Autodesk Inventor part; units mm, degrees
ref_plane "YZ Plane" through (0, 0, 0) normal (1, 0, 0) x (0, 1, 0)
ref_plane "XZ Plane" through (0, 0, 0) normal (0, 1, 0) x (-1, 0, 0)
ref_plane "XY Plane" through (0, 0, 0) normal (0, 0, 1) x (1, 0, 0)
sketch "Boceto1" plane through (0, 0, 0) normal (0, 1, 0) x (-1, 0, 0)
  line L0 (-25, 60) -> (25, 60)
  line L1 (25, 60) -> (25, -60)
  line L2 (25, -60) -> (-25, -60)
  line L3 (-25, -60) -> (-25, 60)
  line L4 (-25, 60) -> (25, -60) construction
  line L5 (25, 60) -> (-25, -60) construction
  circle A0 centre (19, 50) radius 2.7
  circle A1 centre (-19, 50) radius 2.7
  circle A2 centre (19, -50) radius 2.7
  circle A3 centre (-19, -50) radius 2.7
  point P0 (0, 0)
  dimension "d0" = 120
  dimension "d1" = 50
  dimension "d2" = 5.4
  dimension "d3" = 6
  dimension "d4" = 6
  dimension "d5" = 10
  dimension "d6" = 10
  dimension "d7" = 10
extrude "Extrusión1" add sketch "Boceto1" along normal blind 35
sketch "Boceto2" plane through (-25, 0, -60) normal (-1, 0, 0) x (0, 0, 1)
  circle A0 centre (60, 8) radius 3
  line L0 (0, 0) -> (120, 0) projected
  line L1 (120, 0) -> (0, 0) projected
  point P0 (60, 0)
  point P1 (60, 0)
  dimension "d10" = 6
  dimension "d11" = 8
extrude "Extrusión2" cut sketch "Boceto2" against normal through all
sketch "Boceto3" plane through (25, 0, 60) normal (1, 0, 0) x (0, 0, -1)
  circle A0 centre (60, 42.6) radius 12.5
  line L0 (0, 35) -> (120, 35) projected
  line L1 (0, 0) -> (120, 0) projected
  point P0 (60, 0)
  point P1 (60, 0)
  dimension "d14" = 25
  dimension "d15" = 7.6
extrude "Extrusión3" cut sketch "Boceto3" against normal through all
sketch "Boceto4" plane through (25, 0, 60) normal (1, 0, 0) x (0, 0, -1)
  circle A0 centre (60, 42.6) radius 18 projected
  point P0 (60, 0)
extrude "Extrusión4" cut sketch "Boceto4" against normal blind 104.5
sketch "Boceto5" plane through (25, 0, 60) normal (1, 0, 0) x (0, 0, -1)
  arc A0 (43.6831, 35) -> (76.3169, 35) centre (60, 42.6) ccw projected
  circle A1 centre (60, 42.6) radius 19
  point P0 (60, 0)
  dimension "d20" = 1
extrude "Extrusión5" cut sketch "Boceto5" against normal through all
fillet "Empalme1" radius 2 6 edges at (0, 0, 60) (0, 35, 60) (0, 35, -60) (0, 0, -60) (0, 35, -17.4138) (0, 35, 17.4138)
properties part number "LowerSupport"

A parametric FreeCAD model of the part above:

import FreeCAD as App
import Part
import Sketcher
Q = App.Units.Quantity


def edges_at(feature, points):
    """Names of the edges that pass closest to the given points."""
    edges = feature.Shape.Edges
    near = lambda p: min(range(len(edges)), key=lambda i: edges[i].distToShape(Part.Vertex(*p))[0])
    return sorted({f"Edge{near(p) + 1}" for p in points})


def add_polygon(sketch, points):
    """Adds a closed chain of lines whose ends are joined by coincident constraints."""
    first, n = sketch.GeometryCount, len(points)
    for a, b in zip(points, points[1:] + points[:1]):
        sketch.addGeometry(Part.LineSegment(App.Vector(*a, 0), App.Vector(*b, 0)), False)
    for i in range(n):
        sketch.addConstraint(Sketcher.Constraint("Coincident", first + i, 2, first + (i + 1) % n, 1))

doc = App.newDocument("Part")
body = doc.addObject("PartDesign::Body", "Body")

# Sketch on XZ plane
sketch1 = body.newObject("Sketcher::SketchObject", "Sketch")
sketch1.AttachmentSupport = (doc.getObject("XZ_Plane"), [""])
sketch1.MapMode = "FlatFace"
add_polygon(sketch1, [(-25, 60), (25, 60), (25, -60), (-25, -60)])  # lines 0-3
sketch1.addGeometry(Part.Circle(App.Vector(19, -50, 0), App.Vector(0, 0, 1), 2.7), False)  # 4
sketch1.addGeometry(Part.Circle(App.Vector(-19, -50, 0), App.Vector(0, 0, 1), 2.7), False)  # 5
sketch1.addGeometry(Part.Circle(App.Vector(19, 50, 0), App.Vector(0, 0, 1), 2.7), False)  # 6
sketch1.addGeometry(Part.Circle(App.Vector(-19, 50, 0), App.Vector(0, 0, 1), 2.7), False)  # 7
sketch1.addConstraint([
    Sketcher.Constraint("Horizontal", 0),
    Sketcher.Constraint("Vertical", 1),
    Sketcher.Constraint("Horizontal", 2),
    Sketcher.Constraint("Vertical", 3),
    Sketcher.Constraint("Equal", 4, 5),
    Sketcher.Constraint("Equal", 5, 6),
    Sketcher.Constraint("Equal", 6, 7),
    Sketcher.Constraint("Symmetric", 5, 3, 6, 3, -1, 1),
    Sketcher.Constraint("Symmetric", 4, 3, 7, 3, -1, 1),
    Sketcher.Constraint("Symmetric", 0, 2, 2, 2, -1, 1),
    Sketcher.Constraint("Symmetric", 4, 3, 5, 3, -2),
    Sketcher.Constraint("Diameter", 4, Q("5.4 mm")),
    Sketcher.Constraint("DistanceX", 0, 1, 0, 2, Q("50 mm")),
    Sketcher.Constraint("DistanceY", 1, 2, 1, 1, Q("120 mm")),
    Sketcher.Constraint("DistanceY", 4, 3, -1, 1, Q("50 mm")),
    Sketcher.Constraint("DistanceX", 6, 3, 0, 2, Q("6 mm")),
])
pad1 = body.newObject("PartDesign::Pad", "Pad")
pad1.Profile = sketch1
pad1.Length = 35
pad1.Reversed = True

# Sketch on YZ plane
sketch2 = body.newObject("Sketcher::SketchObject", "Sketch001")
sketch2.AttachmentSupport = (doc.getObject("YZ_Plane"), [""])
sketch2.MapMode = "FlatFace"
sketch2.AttachmentOffset = App.Placement(App.Vector(0, 0, -25), App.Rotation())
sketch2.addGeometry(Part.Circle(App.Vector(8, 0, 0), App.Vector(0, 0, 1), 3), False)
sketch2.addConstraint([
    Sketcher.Constraint("PointOnObject", 0, 3, -1),
    Sketcher.Constraint("Diameter", 0, Q("6 mm")),
    Sketcher.Constraint("DistanceX", -1, 1, 0, 3, Q("8 mm")),
])
pocket1 = body.newObject("PartDesign::Pocket", "Pocket")
pocket1.Profile = sketch2
pocket1.Type = "ThroughAll"
pocket1.Reversed = True

# Sketch on YZ plane
sketch3 = body.newObject("Sketcher::SketchObject", "Sketch002")
sketch3.AttachmentSupport = (doc.getObject("YZ_Plane"), [""])
sketch3.MapMode = "FlatFace"
sketch3.AttachmentOffset = App.Placement(App.Vector(0, 0, 25), App.Rotation())
sketch3.addGeometry(Part.Circle(App.Vector(43, 0, 0), App.Vector(0, 0, 1), 12), False)
sketch3.addConstraint([
    Sketcher.Constraint("PointOnObject", 0, 3, -1),
    Sketcher.Constraint("Diameter", 0, Q("25 mm")),
    Sketcher.Constraint("DistanceX", -1, 1, 0, 3, Q("42.6 mm")),
])
pocket2 = body.newObject("PartDesign::Pocket", "Pocket001")
pocket2.Profile = sketch3
pocket2.Type = "ThroughAll"

# Sketch on YZ plane
sketch4 = body.newObject("Sketcher::SketchObject", "Sketch003")
sketch4.AttachmentSupport = (doc.getObject("YZ_Plane"), [""])
sketch4.MapMode = "FlatFace"
sketch4.AttachmentOffset = App.Placement(App.Vector(0, 0, 25), App.Rotation())
sketch4.addGeometry(Part.Circle(App.Vector(43, 0, 0), App.Vector(0, 0, 1), 18), False)
sketch4.addConstraint([
    Sketcher.Constraint("PointOnObject", 0, 3, -1),
    Sketcher.Constraint("Diameter", 0, Q("36 mm")),
    Sketcher.Constraint("DistanceX", -1, 1, 0, 3, Q("42.6 mm")),
])
pocket3 = body.newObject("PartDesign::Pocket", "Pocket002")
pocket3.Profile = sketch4
pocket3.Length = 104.5

# Sketch on YZ plane
sketch5 = body.newObject("Sketcher::SketchObject", "Sketch004")
sketch5.AttachmentSupport = (doc.getObject("YZ_Plane"), [""])
sketch5.MapMode = "FlatFace"
sketch5.AttachmentOffset = App.Placement(App.Vector(0, 0, 25), App.Rotation())
sketch5.addGeometry(Part.Circle(App.Vector(43, 0, 0), App.Vector(0, 0, 1), 19), False)
sketch5.addConstraint([
    Sketcher.Constraint("PointOnObject", 0, 3, -1),
    Sketcher.Constraint("Diameter", 0, Q("38 mm")),
    Sketcher.Constraint("DistanceX", -1, 1, 0, 3, Q("42.6 mm")),
])
pocket4 = body.newObject("PartDesign::Pocket", "Pocket003")
pocket4.Profile = sketch5
pocket4.Type = "ThroughAll"
doc.recompute()

fillet = body.newObject("PartDesign::Fillet", "Fillet")
fillet.Base = (pocket4, edges_at(pocket4, [
    (0, 0, 60),
    (0, 35, 60),
    (0, 35, -60),
    (0, 0, -60),
    (0, 35, -17.414),
    (0, 35, 17.414),
]))
fillet.Radius = 2

doc.recompute()
